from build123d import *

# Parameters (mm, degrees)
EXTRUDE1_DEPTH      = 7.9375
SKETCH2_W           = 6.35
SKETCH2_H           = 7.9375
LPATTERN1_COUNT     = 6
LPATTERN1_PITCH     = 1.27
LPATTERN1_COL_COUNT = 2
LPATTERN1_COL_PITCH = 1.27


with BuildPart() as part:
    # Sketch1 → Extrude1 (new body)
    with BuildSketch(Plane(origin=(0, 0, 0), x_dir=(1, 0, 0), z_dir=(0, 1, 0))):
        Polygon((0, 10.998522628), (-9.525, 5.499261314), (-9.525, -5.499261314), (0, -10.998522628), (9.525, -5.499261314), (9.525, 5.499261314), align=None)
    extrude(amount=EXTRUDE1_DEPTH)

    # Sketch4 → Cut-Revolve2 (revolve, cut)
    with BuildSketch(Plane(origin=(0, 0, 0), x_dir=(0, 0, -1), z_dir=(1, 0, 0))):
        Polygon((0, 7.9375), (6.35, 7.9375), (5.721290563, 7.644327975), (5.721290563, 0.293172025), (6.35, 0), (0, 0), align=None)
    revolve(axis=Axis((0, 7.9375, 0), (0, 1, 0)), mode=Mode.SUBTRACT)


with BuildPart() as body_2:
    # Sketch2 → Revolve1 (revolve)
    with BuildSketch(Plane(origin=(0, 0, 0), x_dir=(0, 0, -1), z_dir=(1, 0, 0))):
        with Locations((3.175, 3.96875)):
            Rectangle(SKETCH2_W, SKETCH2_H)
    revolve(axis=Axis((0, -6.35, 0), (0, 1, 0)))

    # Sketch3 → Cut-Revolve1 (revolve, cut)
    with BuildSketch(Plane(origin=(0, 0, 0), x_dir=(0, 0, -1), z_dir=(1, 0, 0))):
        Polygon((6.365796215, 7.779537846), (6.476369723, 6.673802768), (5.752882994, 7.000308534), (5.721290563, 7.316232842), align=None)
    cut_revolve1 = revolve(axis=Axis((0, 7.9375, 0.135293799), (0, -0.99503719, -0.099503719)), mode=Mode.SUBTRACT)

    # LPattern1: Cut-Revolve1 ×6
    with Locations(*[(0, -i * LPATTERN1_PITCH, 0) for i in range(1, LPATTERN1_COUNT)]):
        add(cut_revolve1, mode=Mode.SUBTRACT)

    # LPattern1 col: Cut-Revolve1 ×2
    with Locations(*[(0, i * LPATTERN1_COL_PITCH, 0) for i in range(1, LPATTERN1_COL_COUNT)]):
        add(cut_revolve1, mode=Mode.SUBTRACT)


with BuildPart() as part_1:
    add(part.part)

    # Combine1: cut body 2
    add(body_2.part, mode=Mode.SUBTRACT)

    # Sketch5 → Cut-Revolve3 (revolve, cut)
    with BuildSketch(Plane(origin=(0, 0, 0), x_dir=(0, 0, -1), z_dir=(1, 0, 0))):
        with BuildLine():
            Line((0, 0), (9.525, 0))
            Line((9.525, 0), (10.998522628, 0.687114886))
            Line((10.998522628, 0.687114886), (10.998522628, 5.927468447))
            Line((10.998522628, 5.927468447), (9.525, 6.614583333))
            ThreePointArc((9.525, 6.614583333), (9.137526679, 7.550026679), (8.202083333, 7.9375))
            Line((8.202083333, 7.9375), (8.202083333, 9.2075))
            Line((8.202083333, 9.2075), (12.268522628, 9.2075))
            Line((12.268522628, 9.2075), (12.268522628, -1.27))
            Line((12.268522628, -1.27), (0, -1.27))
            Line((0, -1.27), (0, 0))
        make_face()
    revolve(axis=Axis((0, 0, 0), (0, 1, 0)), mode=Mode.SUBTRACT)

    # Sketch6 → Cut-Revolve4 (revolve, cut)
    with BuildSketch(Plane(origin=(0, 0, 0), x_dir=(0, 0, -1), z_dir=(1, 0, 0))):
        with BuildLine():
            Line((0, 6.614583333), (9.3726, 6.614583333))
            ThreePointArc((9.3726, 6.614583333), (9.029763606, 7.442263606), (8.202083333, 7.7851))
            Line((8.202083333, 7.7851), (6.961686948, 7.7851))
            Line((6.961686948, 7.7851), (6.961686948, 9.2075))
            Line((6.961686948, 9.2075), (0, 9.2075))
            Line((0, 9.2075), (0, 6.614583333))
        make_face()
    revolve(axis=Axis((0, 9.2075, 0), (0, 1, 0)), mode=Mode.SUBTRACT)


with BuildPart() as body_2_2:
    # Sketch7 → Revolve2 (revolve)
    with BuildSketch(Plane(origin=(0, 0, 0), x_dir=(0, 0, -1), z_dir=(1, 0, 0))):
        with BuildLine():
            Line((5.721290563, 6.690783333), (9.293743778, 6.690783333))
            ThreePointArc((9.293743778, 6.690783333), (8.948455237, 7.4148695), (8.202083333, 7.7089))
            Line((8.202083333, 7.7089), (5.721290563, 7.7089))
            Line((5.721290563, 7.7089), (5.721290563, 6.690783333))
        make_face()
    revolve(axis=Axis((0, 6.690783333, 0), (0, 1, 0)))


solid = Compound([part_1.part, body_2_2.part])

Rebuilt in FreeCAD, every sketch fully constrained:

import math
import FreeCAD as App
import Part
import Sketcher

V = App.Vector
Q = App.Units.Quantity

doc = App.newDocument("Part")
body = doc.addObject("PartDesign::Body", "Body")

# Sketch on XZ plane
sketch1 = doc.addObject("Sketcher::SketchObject", "Sketch")
body.addObject(sketch1)
sketch1.AttachmentSupport = (doc.XZ_Plane, [""])
sketch1.MapMode = "FlatFace"
sketch1.addGeometry([
    Part.LineSegment(V(0, -11, 0), V(-10, -5, 0)),  # 0
    Part.LineSegment(V(-10, -5, 0), V(-10, 5, 0)),  # 1
    Part.LineSegment(V(-10, 5, 0), V(0, 11, 0)),  # 2
    Part.LineSegment(V(0, 11, 0), V(10, 5, 0)),  # 3
    Part.LineSegment(V(10, 5, 0), V(10, -5, 0)),  # 4
    Part.LineSegment(V(10, -5, 0), V(0, -11, 0)),  # 5
], False)
sketch1.addConstraint([
    Sketcher.Constraint("Coincident", 0, 2, 1, 1),
    Sketcher.Constraint("Coincident", 1, 2, 2, 1),
    Sketcher.Constraint("Coincident", 2, 2, 3, 1),
    Sketcher.Constraint("Coincident", 3, 2, 4, 1),
    Sketcher.Constraint("Coincident", 4, 2, 5, 1),
    Sketcher.Constraint("Coincident", 5, 2, 0, 1),
    Sketcher.Constraint("Vertical", 1),
    Sketcher.Constraint("Vertical", 4),
    Sketcher.Constraint("Symmetric", 0, 2, 3, 2, -1, 1),
    Sketcher.Constraint("Symmetric", 2, 2, 5, 2, -1, 1),
    Sketcher.Constraint("PointOnObject", 2, 2, -2),
    Sketcher.Constraint("Parallel", 2, 5),
    Sketcher.Constraint("Horizontal", 1, 2, 3, 2),
    Sketcher.Constraint("Angle", 0, Q("150 deg")),
    Sketcher.Constraint("DistanceX", 1, 2, 3, 2, Q("0.75 in")),
    Sketcher.Constraint("DistanceY", 1, 1, 1, 2, 10.998523),
])
pad1 = doc.addObject("PartDesign::Pad", "Pad")
body.addObject(pad1)
pad1.Profile = sketch1
pad1.Length = Q("0.3125 in")
pad1.Reversed = True

# Sketch on YZ plane
sketch2 = doc.addObject("Sketcher::SketchObject", "Sketch001")
body.addObject(sketch2)
sketch2.AttachmentSupport = (doc.YZ_Plane, [""])
sketch2.MapMode = "FlatFace"
sketch2.addGeometry([
    Part.LineSegment(V(7.9, -6.3, 0), V(7.9, 0, 0)),  # 0
    Part.LineSegment(V(7.9, 0, 0), V(0, 0, 0)),  # 1
    Part.LineSegment(V(0, 0, 0), V(0, -6.3, 0)),  # 2
    Part.LineSegment(V(0, -6.3, 0), V(0.3, -5.7, 0)),  # 3
    Part.LineSegment(V(0.3, -5.7, 0), V(7.6, -5.7, 0)),  # 4
    Part.LineSegment(V(7.6, -5.7, 0), V(7.9, -6.3, 0)),  # 5
], False)
sketch2.addConstraint([
    Sketcher.Constraint("Coincident", 0, 2, 1, 1),
    Sketcher.Constraint("Coincident", 1, 2, 2, 1),
    Sketcher.Constraint("Coincident", 2, 2, 3, 1),
    Sketcher.Constraint("Coincident", 3, 2, 4, 1),
    Sketcher.Constraint("Coincident", 4, 2, 5, 1),
    Sketcher.Constraint("Coincident", 5, 2, 0, 1),
    Sketcher.Constraint("Vertical", 0),
    Sketcher.Constraint("Horizontal", 1),
    Sketcher.Constraint("Vertical", 2),
    Sketcher.Constraint("Horizontal", 4),
    Sketcher.Constraint("Coincident", 1, 2, -1, 1),
    Sketcher.Constraint("Horizontal", 2, 2, 5, 2),
    Sketcher.Constraint("Equal", 3, 5),
    Sketcher.Constraint("Angle", 3, Q("65 deg")),
    Sketcher.Constraint("DistanceY", 0, 1, 0, 2, Q("0.25 in")),
    Sketcher.Constraint("DistanceX", 1, 2, 1, 1, Q("0.3125 in")),
    Sketcher.Constraint("DistanceX", 4, 1, 4, 2, 7.351156),
])
groove = doc.addObject("PartDesign::Groove", "Groove")
body.addObject(groove)
groove.Profile = sketch2
groove.ReferenceAxis = (sketch2, ["H_Axis"])
groove.Angle = 360
body2 = doc.addObject("PartDesign::Body", "Body001")

# Sketch on YZ plane
sketch3 = doc.addObject("Sketcher::SketchObject", "Sketch002")
body2.addObject(sketch3)
sketch3.AttachmentSupport = (doc.getObject("YZ_Plane001"), [""])
sketch3.MapMode = "FlatFace"
sketch3.addGeometry([
    Part.LineSegment(V(8, 0, 0), V(0, 0, 0)),
    Part.LineSegment(V(0, 0, 0), V(0, -6, 0)),
    Part.LineSegment(V(0, -6, 0), V(8, -6, 0)),
    Part.LineSegment(V(8, -6, 0), V(8, 0, 0)),
], False)
sketch3.addConstraint([
    Sketcher.Constraint("Coincident", 0, 2, 1, 1),
    Sketcher.Constraint("Coincident", 1, 2, 2, 1),
    Sketcher.Constraint("Coincident", 2, 2, 3, 1),
    Sketcher.Constraint("Coincident", 3, 2, 0, 1),
    Sketcher.Constraint("Horizontal", 0),
    Sketcher.Constraint("Vertical", 1),
    Sketcher.Constraint("Horizontal", 2),
    Sketcher.Constraint("Vertical", 3),
    Sketcher.Constraint("Coincident", 0, 2, -1, 1),
    Sketcher.Constraint("DistanceY", 1, 2, 1, 1, Q("0.25 in")),
    Sketcher.Constraint("DistanceX", 0, 2, 0, 1, Q("0.3125 in")),
])
revolution = doc.addObject("PartDesign::Revolution", "Revolution")
body2.addObject(revolution)
revolution.Profile = sketch3
revolution.ReferenceAxis = (sketch3, ["H_Axis"])
revolution.Angle = 360

# Sketch on YZ plane
sketch4 = doc.addObject("Sketcher::SketchObject", "Sketch003")
body2.addObject(sketch4)
sketch4.AttachmentSupport = (doc.getObject("YZ_Plane001"), [""])
sketch4.MapMode = "FlatFace"
sketch4.addGeometry([
    Part.LineSegment(V(6.67, -6.48, 0), V(7.78, -6.37, 0)),
    Part.LineSegment(V(7.78, -6.37, 0), V(7.32, -5.72, 0)),
    Part.LineSegment(V(7.32, -5.72, 0), V(7, -5.75, 0)),
    Part.LineSegment(V(7, -5.75, 0), V(6.67, -6.48, 0)),
], False)
sketch4.addGeometry(Part.LineSegment(V(7.14, 0.06, 0), V(6.03, -0.06, 0)), True)  # axis
sketch4.addConstraint([
    Sketcher.Constraint("Coincident", 0, 2, 1, 1),
    Sketcher.Constraint("Coincident", 1, 2, 2, 1),
    Sketcher.Constraint("Coincident", 2, 2, 3, 1),
    Sketcher.Constraint("Coincident", 3, 2, 0, 1),
    Sketcher.Constraint("Parallel", 0, 2),
    Sketcher.Constraint("Parallel", 2, 4),
    Sketcher.Constraint("Equal", 1, 3),
    Sketcher.Constraint("Equal", 0, 4),
    Sketcher.Constraint("Distance", 1, Q("0.03125 in")),
    Sketcher.Constraint("Distance", 2, Q("0.0125 in")),
    Sketcher.Constraint("Distance", 0, 1.11125),
    Sketcher.Constraint("DistanceY", 1, 2, -1, 1, 5.721291),
    Sketcher.Constraint("DistanceX", -1, 1, 2, 2, 7.000309),
    Sketcher.Constraint("DistanceY", 3, 2, -1, 1, 6.47637),
    Sketcher.Constraint("DistanceX", -1, 1, 4, 1, 7.13743),
    Sketcher.Constraint("DistanceY", 2, 2, 4, 1, 5.80817),
])
groove2 = doc.addObject("PartDesign::Groove", "Groove001")
body2.addObject(groove2)
groove2.Profile = sketch4
groove2.ReferenceAxis = (sketch4, ["Axis0"])
groove2.Angle = 360
doc.recompute()

linearpattern = doc.addObject("PartDesign::LinearPattern", "LinearPattern")
body2.addObject(linearpattern)
linearpattern.Originals = [groove2]
linearpattern.Direction = (doc.getObject("Y_Axis001"), [""])
linearpattern.Mode = "offset"
linearpattern.Offset = Q("0.05 in")
linearpattern.Occurrences = 6
linearpattern.Reversed = True
body2.Tip = linearpattern
doc.recompute()

linearpattern2 = doc.addObject("PartDesign::LinearPattern", "LinearPattern001")
body2.addObject(linearpattern2)
linearpattern2.Originals = [groove2]
linearpattern2.Direction = (doc.getObject("Y_Axis001"), [""])
linearpattern2.Mode = "offset"
linearpattern2.Offset = Q("0.05 in")
linearpattern2.Occurrences = 2
body2.Tip = linearpattern2
doc.recompute()

boolean = doc.addObject("PartDesign::Boolean", "Boolean")
body.addObject(boolean)
boolean.Type = "Cut"
boolean.addObjects([body2])

# Sketch on YZ plane
sketch5 = doc.addObject("Sketcher::SketchObject", "Sketch004")
body.addObject(sketch5)
sketch5.AttachmentSupport = (doc.YZ_Plane, [""])
sketch5.MapMode = "FlatFace"
sketch5.addGeometry([
    Part.LineSegment(V(0, -9.5, 0), V(0, 0, 0)),  # 0
    Part.LineSegment(V(0, 0, 0), V(-1.3, 0, 0)),  # 1
    Part.LineSegment(V(-1.3, 0, 0), V(-1.3, -12.3, 0)),  # 2
    Part.LineSegment(V(-1.3, -12.3, 0), V(9.2, -12.3, 0)),  # 3
    Part.LineSegment(V(9.2, -12.3, 0), V(9.2, -8.2, 0)),  # 4
    Part.LineSegment(V(9.2, -8.2, 0), V(7.9, -8.2, 0)),  # 5
    Part.ArcOfCircle(Part.Circle(V(6.6, -8.2, 0), V(0, 0, 1), 1.3), math.radians(-90), math.radians(0)),  # 6
    Part.LineSegment(V(6.6, -9.5, 0), V(5.9, -11, 0)),  # 7
    Part.LineSegment(V(5.9, -11, 0), V(0.7, -11, 0)),  # 8
    Part.LineSegment(V(0.7, -11, 0), V(0, -9.5, 0)),  # 9
], False)
sketch5.addConstraint([
    Sketcher.Constraint("Coincident", 0, 2, 1, 1),
    Sketcher.Constraint("Coincident", 1, 2, 2, 1),
    Sketcher.Constraint("Coincident", 2, 2, 3, 1),
    Sketcher.Constraint("Coincident", 3, 2, 4, 1),
    Sketcher.Constraint("Coincident", 4, 2, 5, 1),
    Sketcher.Constraint("Coincident", 5, 2, 6, 2),
    Sketcher.Constraint("Coincident", 6, 1, 7, 1),
    Sketcher.Constraint("Coincident", 7, 2, 8, 1),
    Sketcher.Constraint("Coincident", 8, 2, 9, 1),
    Sketcher.Constraint("Coincident", 9, 2, 0, 1),
    Sketcher.Constraint("Vertical", 0),
    Sketcher.Constraint("Horizontal", 1),
    Sketcher.Constraint("Vertical", 2),
    Sketcher.Constraint("Horizontal", 3),
    Sketcher.Constraint("Vertical", 4),
    Sketcher.Constraint("Horizontal", 5),
    Sketcher.Constraint("Horizontal", 8),
    Sketcher.Constraint("Coincident", 0, 2, -1, 1),
    Sketcher.Constraint("Horizontal", 6, 3, 4, 2),
    Sketcher.Constraint("Horizontal", 6, 1, 9, 2),
    Sketcher.Constraint("Equal", 1, 5),
    Sketcher.Constraint("Equal", 7, 9),
    Sketcher.Constraint("Angle", 7, Q("-115 deg")),
    Sketcher.Constraint("DistanceX", 1, 2, 1, 1, Q("0.05 in")),
    Sketcher.Constraint("DistanceY", 0, 1, 0, 2, Q("0.375 in")),
    Sketcher.Constraint("DistanceY", 3, 2, 7, 2, Q("0.05 in")),
    Sketcher.Constraint("DistanceX", 3, 1, 3, 2, Q("0.4125 in")),
    Sketcher.Constraint("Radius", 6, 1.322917),
    Sketcher.Constraint("DistanceY", 4, 1, 4, 2, 4.066439),
    Sketcher.Constraint("DistanceX", 8, 2, 8, 1, 5.240354),
])
groove3 = doc.addObject("PartDesign::Groove", "Groove002")
body.addObject(groove3)
groove3.Profile = sketch5
groove3.ReferenceAxis = (sketch5, ["H_Axis"])
groove3.Angle = 360

# Sketch on YZ plane
sketch6 = doc.addObject("Sketcher::SketchObject", "Sketch005")
body.addObject(sketch6)
sketch6.AttachmentSupport = (doc.YZ_Plane, [""])
sketch6.MapMode = "FlatFace"
sketch6.addGeometry([
    Part.LineSegment(V(6.6, 0, 0), V(6.6, -9.4, 0)),  # 0
    Part.ArcOfCircle(Part.Circle(V(6.6, -8.2, 0), V(0, 0, 1), 1.2), math.radians(-90), math.radians(0)),  # 1
    Part.LineSegment(V(7.8, -8.2, 0), V(7.8, -7, 0)),  # 2
    Part.LineSegment(V(7.8, -7, 0), V(9.2, -7, 0)),  # 3
    Part.LineSegment(V(9.2, -7, 0), V(9.2, 0, 0)),  # 4
    Part.LineSegment(V(9.2, 0, 0), V(6.6, 0, 0)),  # 5
], False)
sketch6.addConstraint([
    Sketcher.Constraint("Coincident", 0, 2, 1, 1),
    Sketcher.Constraint("Tangent", 1, 2, 2, 1),
    Sketcher.Constraint("Coincident", 2, 2, 3, 1),
    Sketcher.Constraint("Coincident", 3, 2, 4, 1),
    Sketcher.Constraint("Coincident", 4, 2, 5, 1),
    Sketcher.Constraint("Coincident", 5, 2, 0, 1),
    Sketcher.Constraint("Vertical", 0),
    Sketcher.Constraint("Vertical", 2),
    Sketcher.Constraint("Horizontal", 3),
    Sketcher.Constraint("Vertical", 4),
    Sketcher.Constraint("Horizontal", 5),
    Sketcher.Constraint("PointOnObject", 4, 2, -1),
    Sketcher.Constraint("Vertical", 1, 3, 0, 2),
    Sketcher.Constraint("DistanceX", 3, 1, 3, 2, Q("0.056 in")),
    Sketcher.Constraint("DistanceY", 0, 2, 0, 1, Q("0.369 in")),
    Sketcher.Constraint("DistanceX", -1, 1, 1, 2, Q("0.3065 in")),
    Sketcher.Constraint("Radius", 1, 1.170517),
    Sketcher.Constraint("DistanceY", 2, 1, 2, 2, 1.240396),
])
groove4 = doc.addObject("PartDesign::Groove", "Groove003")
body.addObject(groove4)
groove4.Profile = sketch6
groove4.ReferenceAxis = (sketch6, ["H_Axis"])
groove4.Angle = 360
body3 = doc.addObject("PartDesign::Body", "Body002")

# Sketch on YZ plane
sketch7 = doc.addObject("Sketcher::SketchObject", "Sketch006")
body3.addObject(sketch7)
sketch7.AttachmentSupport = (doc.getObject("YZ_Plane002"), [""])
sketch7.MapMode = "FlatFace"
sketch7.addGeometry([
    Part.LineSegment(V(6.7, -5.7, 0), V(6.7, -9.3, 0)),
    Part.ArcOfCircle(Part.Circle(V(6.6, -8.2, 0), V(0, 0, 1), 1.1), math.radians(-86), math.radians(0)),
    Part.LineSegment(V(7.7, -8.2, 0), V(7.7, -5.7, 0)),
    Part.LineSegment(V(7.7, -5.7, 0), V(6.7, -5.7, 0)),
], False)
sketch7.addConstraint([
    Sketcher.Constraint("Coincident", 0, 2, 1, 1),
    Sketcher.Constraint("Tangent", 1, 2, 2, 1),
    Sketcher.Constraint("Coincident", 2, 2, 3, 1),
    Sketcher.Constraint("Coincident", 3, 2, 0, 1),
    Sketcher.Constraint("Vertical", 0),
    Sketcher.Constraint("Vertical", 2),
    Sketcher.Constraint("Horizontal", 3),
    Sketcher.Constraint("DistanceX", 1, 3, 0, 2, Q("0.003 in")),
    Sketcher.Constraint("DistanceX", -1, 1, 1, 2, Q("0.3035 in")),
    Sketcher.Constraint("Radius", 1, 1.094317),
    Sketcher.Constraint("DistanceY", 0, 2, 0, 1, 3.572453),
    Sketcher.Constraint("DistanceY", 2, 2, -1, 1, 5.721291),
])
revolution2 = doc.addObject("PartDesign::Revolution", "Revolution001")
body3.addObject(revolution2)
revolution2.Profile = sketch7
revolution2.ReferenceAxis = (sketch7, ["H_Axis"])
revolution2.Angle = 360

doc.recompute()
